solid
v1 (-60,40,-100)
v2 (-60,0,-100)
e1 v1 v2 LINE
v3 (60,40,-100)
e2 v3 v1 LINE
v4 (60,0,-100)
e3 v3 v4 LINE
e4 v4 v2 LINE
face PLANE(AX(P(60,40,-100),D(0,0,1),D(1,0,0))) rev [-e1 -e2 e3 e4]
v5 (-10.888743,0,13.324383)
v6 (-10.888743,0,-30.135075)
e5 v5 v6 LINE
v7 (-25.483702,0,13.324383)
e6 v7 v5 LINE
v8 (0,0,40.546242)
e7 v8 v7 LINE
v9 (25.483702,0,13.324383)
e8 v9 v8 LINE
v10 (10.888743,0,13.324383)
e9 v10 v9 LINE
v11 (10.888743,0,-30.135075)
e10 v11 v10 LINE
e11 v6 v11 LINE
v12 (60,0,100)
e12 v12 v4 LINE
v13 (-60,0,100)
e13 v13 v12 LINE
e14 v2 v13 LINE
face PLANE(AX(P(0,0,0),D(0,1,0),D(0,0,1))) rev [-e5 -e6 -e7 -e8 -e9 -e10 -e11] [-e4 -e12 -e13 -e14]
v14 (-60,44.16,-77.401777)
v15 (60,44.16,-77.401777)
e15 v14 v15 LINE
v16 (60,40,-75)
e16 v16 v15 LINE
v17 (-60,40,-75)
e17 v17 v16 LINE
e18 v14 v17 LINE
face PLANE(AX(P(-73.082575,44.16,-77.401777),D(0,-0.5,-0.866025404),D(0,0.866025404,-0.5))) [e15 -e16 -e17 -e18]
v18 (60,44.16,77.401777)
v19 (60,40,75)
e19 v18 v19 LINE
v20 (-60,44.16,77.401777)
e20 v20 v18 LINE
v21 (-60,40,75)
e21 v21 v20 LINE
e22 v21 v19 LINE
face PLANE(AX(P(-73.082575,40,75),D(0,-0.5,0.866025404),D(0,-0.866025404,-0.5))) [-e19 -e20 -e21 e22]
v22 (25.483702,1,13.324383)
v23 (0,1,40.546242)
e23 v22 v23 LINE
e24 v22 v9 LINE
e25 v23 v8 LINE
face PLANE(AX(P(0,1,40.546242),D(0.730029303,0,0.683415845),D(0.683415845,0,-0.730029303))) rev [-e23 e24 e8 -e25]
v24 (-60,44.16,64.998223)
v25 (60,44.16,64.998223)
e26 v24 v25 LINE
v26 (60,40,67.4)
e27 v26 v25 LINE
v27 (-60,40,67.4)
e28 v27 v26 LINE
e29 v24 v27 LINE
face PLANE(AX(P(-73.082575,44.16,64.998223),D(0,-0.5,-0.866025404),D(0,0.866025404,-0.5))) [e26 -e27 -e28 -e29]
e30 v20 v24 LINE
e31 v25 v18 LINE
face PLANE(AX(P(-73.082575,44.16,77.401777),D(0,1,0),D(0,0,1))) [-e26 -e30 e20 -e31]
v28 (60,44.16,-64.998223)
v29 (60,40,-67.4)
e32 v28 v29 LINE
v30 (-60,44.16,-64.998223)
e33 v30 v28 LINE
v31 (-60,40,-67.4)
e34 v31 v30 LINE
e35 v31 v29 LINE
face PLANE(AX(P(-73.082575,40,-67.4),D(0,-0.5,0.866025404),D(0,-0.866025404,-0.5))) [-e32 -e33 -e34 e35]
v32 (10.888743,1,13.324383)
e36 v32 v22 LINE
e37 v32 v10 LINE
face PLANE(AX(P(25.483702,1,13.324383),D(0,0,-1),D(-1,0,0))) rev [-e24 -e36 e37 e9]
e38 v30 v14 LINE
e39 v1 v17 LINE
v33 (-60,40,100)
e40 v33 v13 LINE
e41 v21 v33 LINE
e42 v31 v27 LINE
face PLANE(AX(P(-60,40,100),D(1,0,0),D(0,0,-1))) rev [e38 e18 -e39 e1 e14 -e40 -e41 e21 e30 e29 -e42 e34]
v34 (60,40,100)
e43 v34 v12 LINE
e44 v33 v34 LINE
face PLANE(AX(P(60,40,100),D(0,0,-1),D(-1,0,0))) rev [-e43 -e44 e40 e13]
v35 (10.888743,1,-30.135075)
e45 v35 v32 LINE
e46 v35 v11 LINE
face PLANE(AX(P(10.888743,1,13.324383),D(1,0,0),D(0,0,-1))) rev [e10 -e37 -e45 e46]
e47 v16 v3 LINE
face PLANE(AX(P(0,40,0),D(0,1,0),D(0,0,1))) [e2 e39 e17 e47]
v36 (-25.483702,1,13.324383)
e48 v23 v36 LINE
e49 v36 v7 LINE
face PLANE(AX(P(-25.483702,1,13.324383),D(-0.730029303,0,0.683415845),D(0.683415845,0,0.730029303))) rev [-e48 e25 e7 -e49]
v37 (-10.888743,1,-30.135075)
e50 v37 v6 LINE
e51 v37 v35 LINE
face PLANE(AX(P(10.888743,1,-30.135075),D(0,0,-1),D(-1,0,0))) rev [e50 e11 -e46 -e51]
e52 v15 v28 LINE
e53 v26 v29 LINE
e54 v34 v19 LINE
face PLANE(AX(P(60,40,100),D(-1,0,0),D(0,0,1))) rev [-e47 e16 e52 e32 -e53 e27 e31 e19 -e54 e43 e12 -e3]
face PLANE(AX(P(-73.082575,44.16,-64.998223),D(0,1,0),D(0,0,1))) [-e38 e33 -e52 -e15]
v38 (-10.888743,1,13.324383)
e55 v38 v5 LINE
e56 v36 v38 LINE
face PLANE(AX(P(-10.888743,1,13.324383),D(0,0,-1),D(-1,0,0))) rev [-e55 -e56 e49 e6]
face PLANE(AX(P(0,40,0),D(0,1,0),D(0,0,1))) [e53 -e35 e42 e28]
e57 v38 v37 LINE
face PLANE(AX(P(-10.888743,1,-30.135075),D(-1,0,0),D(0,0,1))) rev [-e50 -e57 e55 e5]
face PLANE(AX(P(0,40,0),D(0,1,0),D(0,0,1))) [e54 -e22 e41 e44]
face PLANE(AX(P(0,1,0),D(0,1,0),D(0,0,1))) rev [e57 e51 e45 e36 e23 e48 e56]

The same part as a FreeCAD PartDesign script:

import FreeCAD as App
import Part
import Sketcher

V = App.Vector
Q = App.Units.Quantity

doc = App.newDocument("Part")
body = doc.addObject("PartDesign::Body", "Body")

# Sketch on XZ plane
sketch1 = body.newObject("Sketcher::SketchObject", "Sketch")
sketch1.AttachmentSupport = (doc.getObject("XZ_Plane"), [""])
sketch1.MapMode = "FlatFace"
sketch1.addGeometry(Part.LineSegment(V(-60, -100, 0), V(-60, 100, 0)), False)
sketch1.addGeometry(Part.LineSegment(V(-60, 100, 0), V(60, 100, 0)), False)
sketch1.addGeometry(Part.LineSegment(V(60, 100, 0), V(60, -100, 0)), False)
sketch1.addGeometry(Part.LineSegment(V(60, -100, 0), V(-60, -100, 0)), False)
sketch1.addConstraint(Sketcher.Constraint("Coincident", 0, 2, 1, 1))
sketch1.addConstraint(Sketcher.Constraint("Coincident", 1, 2, 2, 1))
sketch1.addConstraint(Sketcher.Constraint("Coincident", 2, 2, 3, 1))
sketch1.addConstraint(Sketcher.Constraint("Coincident", 3, 2, 0, 1))
sketch1.addConstraint(Sketcher.Constraint("Vertical", 0))
sketch1.addConstraint(Sketcher.Constraint("Horizontal", 1))
sketch1.addConstraint(Sketcher.Constraint("Vertical", 2))
sketch1.addConstraint(Sketcher.Constraint("Horizontal", 3))
sketch1.addConstraint(Sketcher.Constraint("Symmetric", 0, 2, 2, 2, -1, 1))
sketch1.addConstraint(Sketcher.Constraint("DistanceX", 1, 1, 1, 2, Q("120 mm")))
sketch1.addConstraint(Sketcher.Constraint("DistanceY", 0, 1, 0, 2, Q("200 mm")))
pad1 = body.newObject("PartDesign::Pad", "Pad")
pad1.Profile = sketch1
pad1.Length = 40
pad1.Reversed = True

# Sketch on YZ plane
sketch2 = body.newObject("Sketcher::SketchObject", "Sketch001")
sketch2.AttachmentSupport = (doc.getObject("YZ_Plane"), [""])
sketch2.MapMode = "FlatFace"
sketch2.AttachmentOffset = App.Placement(V(0, 0, 60), App.Rotation())
sketch2.addGeometry(Part.LineSegment(V(44.2, -65, 0), V(40, -67.4, 0)), False)
sketch2.addGeometry(Part.LineSegment(V(40, -67.4, 0), V(40, -75, 0)), False)
sketch2.addGeometry(Part.LineSegment(V(40, -75, 0), V(44.2, -77.4, 0)), False)
sketch2.addGeometry(Part.LineSegment(V(44.2, -77.4, 0), V(44.2, -65, 0)), False)
sketch2.addGeometry(Part.LineSegment(V(44.2, 77.4, 0), V(40, 75, 0)), False)
sketch2.addGeometry(Part.LineSegment(V(40, 75, 0), V(40, 67.4, 0)), False)
sketch2.addGeometry(Part.LineSegment(V(40, 67.4, 0), V(44.2, 65, 0)), False)
sketch2.addGeometry(Part.LineSegment(V(44.2, 65, 0), V(44.2, 77.4, 0)), False)
sketch2.addConstraint(Sketcher.Constraint("Coincident", 0, 2, 1, 1))
sketch2.addConstraint(Sketcher.Constraint("Coincident", 1, 2, 2, 1))
sketch2.addConstraint(Sketcher.Constraint("Coincident", 2, 2, 3, 1))
sketch2.addConstraint(Sketcher.Constraint("Coincident", 3, 2, 0, 1))
sketch2.addConstraint(Sketcher.Constraint("Coincident", 4, 2, 5, 1))
sketch2.addConstraint(Sketcher.Constraint("Coincident", 5, 2, 6, 1))
sketch2.addConstraint(Sketcher.Constraint("Coincident", 6, 2, 7, 1))
sketch2.addConstraint(Sketcher.Constraint("Coincident", 7, 2, 4, 1))
sketch2.addConstraint(Sketcher.Constraint("Vertical", 1))
sketch2.addConstraint(Sketcher.Constraint("Vertical", 3))
sketch2.addConstraint(Sketcher.Constraint("Vertical", 5))
sketch2.addConstraint(Sketcher.Constraint("Vertical", 7))
sketch2.addConstraint(Sketcher.Constraint("Symmetric", 1, 2, 4, 2, -1))
sketch2.addConstraint(Sketcher.Constraint("Symmetric", 3, 2, 6, 2, -1))
sketch2.addConstraint(Sketcher.Constraint("Parallel", 0, 4))
sketch2.addConstraint(Sketcher.Constraint("Parallel", 2, 6))
sketch2.addConstraint(Sketcher.Constraint("Equal", 1, 5))
sketch2.addConstraint(Sketcher.Constraint("Angle", 0, Q("-150 deg")))
sketch2.addConstraint(Sketcher.Constraint("DistanceY", 1, 2, 1, 1, Q("7.6 mm")))
sketch2.addConstraint(Sketcher.Constraint("DistanceX", -1, 1, 0, 2, Q("40 mm")))
sketch2.addConstraint(Sketcher.Constraint("DistanceY", 1, 2, -1, 1, Q("75 mm")))
sketch2.addConstraint(Sketcher.Constraint("DistanceX", -1, 1, 2, 2, Q("44.16 mm")))
pad2 = body.newObject("PartDesign::Pad", "Pad001")
pad2.Profile = sketch2
pad2.Length = 120
pad2.Reversed = True

# Sketch on XZ plane
sketch3 = body.newObject("Sketcher::SketchObject", "Sketch002")
sketch3.AttachmentSupport = (doc.getObject("XZ_Plane"), [""])
sketch3.MapMode = "FlatFace"
sketch3.addGeometry(Part.LineSegment(V(-11, 13, 0), V(-11, -30, 0)), False)
sketch3.addGeometry(Part.LineSegment(V(-11, -30, 0), V(11, -30, 0)), False)
sketch3.addGeometry(Part.LineSegment(V(11, -30, 0), V(11, 13, 0)), False)
sketch3.addGeometry(Part.LineSegment(V(11, 13, 0), V(25, 13, 0)), False)
sketch3.addGeometry(Part.LineSegment(V(25, 13, 0), V(0, 41, 0)), False)
sketch3.addGeometry(Part.LineSegment(V(0, 41, 0), V(-25, 13, 0)), False)
sketch3.addGeometry(Part.LineSegment(V(-25, 13, 0), V(-11, 13, 0)), False)
sketch3.addConstraint(Sketcher.Constraint("Coincident", 0, 2, 1, 1))
sketch3.addConstraint(Sketcher.Constraint("Coincident", 1, 2, 2, 1))
sketch3.addConstraint(Sketcher.Constraint("Coincident", 2, 2, 3, 1))
sketch3.addConstraint(Sketcher.Constraint("Coincident", 3, 2, 4, 1))
sketch3.addConstraint(Sketcher.Constraint("Coincident", 4, 2, 5, 1))
sketch3.addConstraint(Sketcher.Constraint("Coincident", 5, 2, 6, 1))
sketch3.addConstraint(Sketcher.Constraint("Coincident", 6, 2, 0, 1))
sketch3.addConstraint(Sketcher.Constraint("Vertical", 0))
sketch3.addConstraint(Sketcher.Constraint("Horizontal", 1))
sketch3.addConstraint(Sketcher.Constraint("Vertical", 2))
sketch3.addConstraint(Sketcher.Constraint("Horizontal", 3))
sketch3.addConstraint(Sketcher.Constraint("Horizontal", 6))
sketch3.addConstraint(Sketcher.Constraint("Symmetric", 3, 2, 5, 2, -2))
sketch3.addConstraint(Sketcher.Constraint("PointOnObject", 4, 2, -2))
sketch3.addConstraint(Sketcher.Constraint("Equal", 3, 6))
sketch3.addConstraint(Sketcher.Constraint("DistanceX", 3, 1, 3, 2, Q("14.594959 mm")))
sketch3.addConstraint(Sketcher.Constraint("Distance", 4, Q("37.28872 mm")))
sketch3.addConstraint(Sketcher.Constraint("DistanceX", 1, 1, 1, 2, Q("21.777487 mm")))
sketch3.addConstraint(Sketcher.Constraint("DistanceY", 0, 2, 0, 1, Q("43.459458 mm")))
sketch3.addConstraint(Sketcher.Constraint("DistanceY", -1, 1, 4, 2, Q("40.546242 mm")))
pocket1 = body.newObject("PartDesign::Pocket", "Pocket")
pocket1.Profile = sketch3
pocket1.Length = 1

doc.recompute()
